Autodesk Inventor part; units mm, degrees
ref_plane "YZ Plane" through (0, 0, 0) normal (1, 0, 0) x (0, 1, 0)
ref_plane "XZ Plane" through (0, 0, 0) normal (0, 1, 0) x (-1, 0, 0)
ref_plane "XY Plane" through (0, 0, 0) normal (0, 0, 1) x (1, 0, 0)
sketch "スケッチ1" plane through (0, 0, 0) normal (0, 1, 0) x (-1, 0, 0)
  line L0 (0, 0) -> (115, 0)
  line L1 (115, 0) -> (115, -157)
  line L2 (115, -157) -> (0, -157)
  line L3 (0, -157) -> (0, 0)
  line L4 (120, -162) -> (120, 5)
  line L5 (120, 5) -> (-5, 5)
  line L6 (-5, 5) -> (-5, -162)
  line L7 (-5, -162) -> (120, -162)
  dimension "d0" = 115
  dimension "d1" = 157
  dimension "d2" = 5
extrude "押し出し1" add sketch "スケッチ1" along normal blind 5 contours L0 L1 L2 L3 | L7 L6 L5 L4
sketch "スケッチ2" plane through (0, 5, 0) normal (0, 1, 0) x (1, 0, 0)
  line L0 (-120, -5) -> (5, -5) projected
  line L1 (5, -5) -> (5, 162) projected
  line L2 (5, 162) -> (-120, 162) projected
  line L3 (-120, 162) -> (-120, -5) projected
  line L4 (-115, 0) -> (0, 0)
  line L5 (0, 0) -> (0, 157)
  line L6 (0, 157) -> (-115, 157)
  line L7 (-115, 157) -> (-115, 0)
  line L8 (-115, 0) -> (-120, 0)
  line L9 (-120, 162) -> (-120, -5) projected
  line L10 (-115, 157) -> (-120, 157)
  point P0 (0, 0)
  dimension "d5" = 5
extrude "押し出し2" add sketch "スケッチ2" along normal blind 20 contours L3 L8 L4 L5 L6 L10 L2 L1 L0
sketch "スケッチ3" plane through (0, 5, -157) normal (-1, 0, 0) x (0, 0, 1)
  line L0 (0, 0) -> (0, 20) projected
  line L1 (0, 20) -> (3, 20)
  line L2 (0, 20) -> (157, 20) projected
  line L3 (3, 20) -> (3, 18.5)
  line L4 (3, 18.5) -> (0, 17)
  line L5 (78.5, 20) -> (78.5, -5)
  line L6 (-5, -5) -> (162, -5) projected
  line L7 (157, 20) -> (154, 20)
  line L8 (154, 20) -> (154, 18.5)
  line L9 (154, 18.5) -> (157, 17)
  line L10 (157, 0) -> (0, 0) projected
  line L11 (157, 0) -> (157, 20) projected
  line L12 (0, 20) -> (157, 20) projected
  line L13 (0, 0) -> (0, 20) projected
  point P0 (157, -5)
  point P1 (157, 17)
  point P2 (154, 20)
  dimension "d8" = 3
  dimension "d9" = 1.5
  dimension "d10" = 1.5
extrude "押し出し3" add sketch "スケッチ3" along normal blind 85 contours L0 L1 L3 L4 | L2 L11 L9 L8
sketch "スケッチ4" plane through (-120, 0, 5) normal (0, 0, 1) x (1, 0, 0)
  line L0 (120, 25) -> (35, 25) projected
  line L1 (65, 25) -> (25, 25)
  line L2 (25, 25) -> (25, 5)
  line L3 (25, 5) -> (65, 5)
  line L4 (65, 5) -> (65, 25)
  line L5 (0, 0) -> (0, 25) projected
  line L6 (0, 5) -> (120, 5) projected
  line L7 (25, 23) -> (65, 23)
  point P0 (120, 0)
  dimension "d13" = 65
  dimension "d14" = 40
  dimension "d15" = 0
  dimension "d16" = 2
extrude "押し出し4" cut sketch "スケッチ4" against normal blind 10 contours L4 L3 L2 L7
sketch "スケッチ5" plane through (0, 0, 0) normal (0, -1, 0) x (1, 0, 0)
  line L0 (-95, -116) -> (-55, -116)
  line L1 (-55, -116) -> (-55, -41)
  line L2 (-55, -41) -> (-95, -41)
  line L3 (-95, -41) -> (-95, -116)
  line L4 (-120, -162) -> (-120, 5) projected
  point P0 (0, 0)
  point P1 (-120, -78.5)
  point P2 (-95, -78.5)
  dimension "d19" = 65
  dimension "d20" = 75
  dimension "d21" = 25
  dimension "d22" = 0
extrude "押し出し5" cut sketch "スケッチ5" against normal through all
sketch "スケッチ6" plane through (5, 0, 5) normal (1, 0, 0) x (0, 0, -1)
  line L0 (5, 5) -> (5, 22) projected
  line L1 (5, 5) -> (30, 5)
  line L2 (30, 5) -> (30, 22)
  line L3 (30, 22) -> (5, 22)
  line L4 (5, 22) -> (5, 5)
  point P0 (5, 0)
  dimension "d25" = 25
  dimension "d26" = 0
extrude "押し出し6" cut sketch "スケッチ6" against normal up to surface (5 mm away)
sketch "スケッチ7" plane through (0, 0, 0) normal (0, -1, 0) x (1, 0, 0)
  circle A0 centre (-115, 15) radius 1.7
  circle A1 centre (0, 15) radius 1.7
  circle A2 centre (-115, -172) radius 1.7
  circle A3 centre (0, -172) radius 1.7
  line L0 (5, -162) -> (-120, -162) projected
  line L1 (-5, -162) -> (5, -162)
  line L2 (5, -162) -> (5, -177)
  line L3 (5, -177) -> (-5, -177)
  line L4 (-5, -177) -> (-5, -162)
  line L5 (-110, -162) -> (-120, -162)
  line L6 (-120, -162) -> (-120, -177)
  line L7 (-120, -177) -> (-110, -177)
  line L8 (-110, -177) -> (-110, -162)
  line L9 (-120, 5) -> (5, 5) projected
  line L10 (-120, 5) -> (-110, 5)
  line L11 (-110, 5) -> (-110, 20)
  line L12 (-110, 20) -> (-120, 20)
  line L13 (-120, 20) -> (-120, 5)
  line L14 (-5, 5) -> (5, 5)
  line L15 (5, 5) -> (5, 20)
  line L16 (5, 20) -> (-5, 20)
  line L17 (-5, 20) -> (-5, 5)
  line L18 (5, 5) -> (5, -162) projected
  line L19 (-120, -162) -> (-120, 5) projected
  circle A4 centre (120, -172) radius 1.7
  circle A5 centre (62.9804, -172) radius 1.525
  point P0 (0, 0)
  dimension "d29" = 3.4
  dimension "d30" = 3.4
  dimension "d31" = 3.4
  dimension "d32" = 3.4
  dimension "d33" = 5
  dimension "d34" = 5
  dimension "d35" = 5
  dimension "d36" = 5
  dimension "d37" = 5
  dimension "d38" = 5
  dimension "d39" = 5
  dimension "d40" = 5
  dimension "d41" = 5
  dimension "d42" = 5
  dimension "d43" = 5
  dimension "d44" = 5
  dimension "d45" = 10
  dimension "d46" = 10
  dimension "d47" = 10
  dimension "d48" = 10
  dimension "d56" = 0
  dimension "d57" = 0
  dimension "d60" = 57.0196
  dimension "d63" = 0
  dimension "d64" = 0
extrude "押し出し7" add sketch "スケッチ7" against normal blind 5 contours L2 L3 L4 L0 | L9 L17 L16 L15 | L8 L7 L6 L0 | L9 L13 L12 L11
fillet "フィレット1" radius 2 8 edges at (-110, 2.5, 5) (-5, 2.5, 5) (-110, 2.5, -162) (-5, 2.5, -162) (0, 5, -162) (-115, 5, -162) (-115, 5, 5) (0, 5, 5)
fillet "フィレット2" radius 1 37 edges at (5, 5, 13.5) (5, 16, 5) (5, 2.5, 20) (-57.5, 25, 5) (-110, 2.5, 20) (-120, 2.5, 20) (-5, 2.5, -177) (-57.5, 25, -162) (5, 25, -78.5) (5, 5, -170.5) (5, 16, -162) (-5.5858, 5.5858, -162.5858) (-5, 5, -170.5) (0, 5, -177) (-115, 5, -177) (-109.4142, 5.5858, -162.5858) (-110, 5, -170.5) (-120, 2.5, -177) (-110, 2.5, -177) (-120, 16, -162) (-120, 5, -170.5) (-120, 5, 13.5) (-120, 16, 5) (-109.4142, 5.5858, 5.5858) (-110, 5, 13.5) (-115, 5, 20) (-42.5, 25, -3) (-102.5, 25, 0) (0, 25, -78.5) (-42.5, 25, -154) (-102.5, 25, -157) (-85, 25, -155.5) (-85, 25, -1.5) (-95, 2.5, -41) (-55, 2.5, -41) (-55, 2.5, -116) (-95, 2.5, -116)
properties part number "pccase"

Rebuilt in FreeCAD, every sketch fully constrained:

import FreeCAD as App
import Part
import Sketcher


def edges_at(feature, points):
    """Names of the edges that pass closest to the given points."""
    edges = feature.Shape.Edges
    near = lambda p: min(range(len(edges)), key=lambda i: edges[i].distToShape(Part.Vertex(*p))[0])
    return sorted({f"Edge{near(p) + 1}" for p in points})


def add_polygon(sketch, points):
    """Adds a closed chain of lines whose ends are joined by coincident constraints."""
    first, n = sketch.GeometryCount, len(points)
    for a, b in zip(points, points[1:] + points[:1]):
        sketch.addGeometry(Part.LineSegment(App.Vector(*a, 0), App.Vector(*b, 0)), False)
    for i in range(n):
        sketch.addConstraint(Sketcher.Constraint("Coincident", first + i, 2, first + (i + 1) % n, 1))

doc = App.newDocument("Part")
params = doc.addObject("Spreadsheet::Sheet", "Params")
for row, (alias, value) in enumerate([
    ("sketch1_width", "125 mm"),
    ("sketch1_height", "167 mm"),
    ("pad1_length", "5 mm"),
    ("sketch2_height", "5 mm"),
    ("sketch2_width", "125 mm"),
    ("sketch2_height2", "167 mm"),
    ("pad2_length", "20 mm"),
    ("sketch3_width", "3 mm"),
    ("sketch3_width2", "1.5 mm"),
    ("pad3_length", "85 mm"),
    ("sketch4_width", "40 mm"),
    ("sketch4_height", "18 mm"),
    ("pocket1_length", "10 mm"),
    ("sketch5_height", "75 mm"),
    ("sketch5_width", "40 mm"),
    ("sketch6_height", "25 mm"),
    ("sketch6_width", "17 mm"),
    ("pocket3_length", "5 mm"),
    ("sketch7_diameter", "3.4 mm"),
    ("sketch7_width", "10 mm"),
    ("pad4_length", "5 mm"),
    ("fillet_radius", "2 mm"),
    ("fillet2_radius", "1 mm"),
], start=1):
    params.set(f"A{row}", alias)
    params.set(f"B{row}", "=" + value)
    params.setAlias(f"B{row}", alias)

body = doc.addObject("PartDesign::Body", "Body")

sketch1 = doc.addObject("Sketcher::SketchObject", "Sketch")
body.addObject(sketch1)
sketch1.AttachmentSupport = (doc.XZ_Plane, [""])
sketch1.MapMode = "FlatFace"
add_polygon(sketch1, [(5, -162), (-120, -162), (-120, 5), (5, 5)])
sketch1.addConstraint(Sketcher.Constraint("Horizontal", 0))
sketch1.addConstraint(Sketcher.Constraint("Vertical", 1))
sketch1.addConstraint(Sketcher.Constraint("Horizontal", 2))
sketch1.addConstraint(Sketcher.Constraint("Vertical", 3))
sketch1.addConstraint(Sketcher.Constraint("DistanceY", -1, 1, 1, 2, 5.0))
sketch1.addConstraint(Sketcher.Constraint("DistanceX", -1, 1, 2, 2, 5.0))
sketch1.addConstraint(Sketcher.Constraint("DistanceX", 0, 2, 0, 1, 125.0))
sketch1.addConstraint(Sketcher.Constraint("DistanceY", 1, 1, 1, 2, 167.0))
sketch1.setExpression("Constraints[10]", "Params.sketch1_width")
sketch1.setExpression("Constraints[11]", "Params.sketch1_height")
pad1 = doc.addObject("PartDesign::Pad", "Pad")
body.addObject(pad1)
pad1.Profile = sketch1
pad1.setExpression("Length", "Params.pad1_length")
pad1.Reversed = True

sketch2 = doc.addObject("Sketcher::SketchObject", "Sketch001")
body.addObject(sketch2)
sketch2.AttachmentSupport = (doc.XZ_Plane, [""])
sketch2.MapMode = "FlatFace"
sketch2.AttachmentOffset = App.Placement(App.Vector(0, 0, -5), App.Rotation())
add_polygon(sketch2, [(-120, 0), (-120, 5), (5, 5), (5, -162), (-120, -162), (-120, -157), (0, -157), (0, 0)])
sketch2.addConstraint(Sketcher.Constraint("Vertical", 0))
sketch2.addConstraint(Sketcher.Constraint("Horizontal", 1))
sketch2.addConstraint(Sketcher.Constraint("Vertical", 2))
sketch2.addConstraint(Sketcher.Constraint("Horizontal", 3))
sketch2.addConstraint(Sketcher.Constraint("Vertical", 4))
sketch2.addConstraint(Sketcher.Constraint("Horizontal", 5))
sketch2.addConstraint(Sketcher.Constraint("Vertical", 6))
sketch2.addConstraint(Sketcher.Constraint("Horizontal", 7))
sketch2.addConstraint(Sketcher.Constraint("Coincident", 6, 2, -1, 1))
sketch2.addConstraint(Sketcher.Constraint("Vertical", 0, 2, 3, 2))
sketch2.addConstraint(Sketcher.Constraint("Equal", 0, 4))
sketch2.addConstraint(Sketcher.Constraint("DistanceY", 0, 1, 0, 2, 5.0))
sketch2.addConstraint(Sketcher.Constraint("DistanceX", -1, 1, 1, 2, 5.0))
sketch2.addConstraint(Sketcher.Constraint("DistanceX", 1, 1, 1, 2, 125.0))
sketch2.addConstraint(Sketcher.Constraint("DistanceY", 2, 2, 2, 1, 167.0))
sketch2.setExpression("Constraints[19]", "Params.sketch2_height")
sketch2.setExpression("Constraints[21]", "Params.sketch2_width")
sketch2.setExpression("Constraints[22]", "Params.sketch2_height2")
pad2 = doc.addObject("PartDesign::Pad", "Pad001")
body.addObject(pad2)
pad2.Profile = sketch2
pad2.setExpression("Length", "Params.pad2_length")
pad2.Reversed = True

sketch3 = doc.addObject("Sketcher::SketchObject", "Sketch002")
body.addObject(sketch3)
sketch3.AttachmentSupport = (doc.YZ_Plane, [""])
sketch3.MapMode = "FlatFace"
add_polygon(sketch3, [(25, -157), (22, -157), (23.5, -154), (25, -154)])
add_polygon(sketch3, [(25, 0), (25, -3), (23.5, -3), (22, 0)])
sketch3.addConstraint(Sketcher.Constraint("Horizontal", 0))
sketch3.addConstraint(Sketcher.Constraint("Horizontal", 2))
sketch3.addConstraint(Sketcher.Constraint("Vertical", 3))
sketch3.addConstraint(Sketcher.Constraint("Vertical", 4))
sketch3.addConstraint(Sketcher.Constraint("Horizontal", 5))
sketch3.addConstraint(Sketcher.Constraint("Horizontal", 7))
sketch3.addConstraint(Sketcher.Constraint("PointOnObject", 6, 2, -1))
sketch3.addConstraint(Sketcher.Constraint("Vertical", 3, 2, 4, 2))
sketch3.addConstraint(Sketcher.Constraint("Vertical", 1, 2, 5, 2))
sketch3.addConstraint(Sketcher.Constraint("Vertical", 0, 2, 6, 2))
sketch3.addConstraint(Sketcher.Constraint("Equal", 7, 3))
sketch3.addConstraint(Sketcher.Constraint("Equal", 3, 4))
sketch3.addConstraint(Sketcher.Constraint("DistanceX", 0, 2, 0, 1, 3.0))
sketch3.addConstraint(Sketcher.Constraint("DistanceX", 2, 1, 2, 2, 1.5))
sketch3.addConstraint(Sketcher.Constraint("DistanceX", -1, 1, 0, 2, 22.0))
sketch3.addConstraint(Sketcher.Constraint("DistanceY", 0, 2, -1, 1, 157.0))
sketch3.setExpression("Constraints[20]", "Params.sketch3_width")
sketch3.setExpression("Constraints[21]", "Params.sketch3_width2")
pad3 = doc.addObject("PartDesign::Pad", "Pad002")
body.addObject(pad3)
pad3.Profile = sketch3
pad3.setExpression("Length", "Params.pad3_length")
pad3.Reversed = True

sketch4 = doc.addObject("Sketcher::SketchObject", "Sketch003")
body.addObject(sketch4)
sketch4.AttachmentSupport = (doc.XY_Plane, [""])
sketch4.MapMode = "FlatFace"
sketch4.AttachmentOffset = App.Placement(App.Vector(0, 0, 5), App.Rotation())
add_polygon(sketch4, [(-55, 5), (-55, 23), (-95, 23), (-95, 5)])
sketch4.addConstraint(Sketcher.Constraint("Vertical", 0))
sketch4.addConstraint(Sketcher.Constraint("Horizontal", 1))
sketch4.addConstraint(Sketcher.Constraint("Vertical", 2))
sketch4.addConstraint(Sketcher.Constraint("Horizontal", 3))
sketch4.addConstraint(Sketcher.Constraint("DistanceX", 1, 2, 1, 1, 40.0))
sketch4.addConstraint(Sketcher.Constraint("DistanceY", 0, 1, 0, 2, 18.0))
sketch4.addConstraint(Sketcher.Constraint("DistanceX", 0, 2, -1, 1, 55.0))
sketch4.addConstraint(Sketcher.Constraint("DistanceY", -1, 1, 0, 2, 23.0))
sketch4.setExpression("Constraints[8]", "Params.sketch4_width")
sketch4.setExpression("Constraints[9]", "Params.sketch4_height")
pocket1 = doc.addObject("PartDesign::Pocket", "Pocket")
body.addObject(pocket1)
pocket1.Profile = sketch4
pocket1.setExpression("Length", "Params.pocket1_length")

sketch5 = doc.addObject("Sketcher::SketchObject", "Sketch004")
body.addObject(sketch5)
sketch5.AttachmentSupport = (doc.XZ_Plane, [""])
sketch5.MapMode = "FlatFace"
add_polygon(sketch5, [(-95, -41), (-95, -116), (-55, -116), (-55, -41)])
sketch5.addConstraint(Sketcher.Constraint("Vertical", 0))
sketch5.addConstraint(Sketcher.Constraint("Horizontal", 1))
sketch5.addConstraint(Sketcher.Constraint("Vertical", 2))
sketch5.addConstraint(Sketcher.Constraint("Horizontal", 3))
sketch5.addConstraint(Sketcher.Constraint("DistanceY", 0, 2, 0, 1, 75.0))
sketch5.addConstraint(Sketcher.Constraint("DistanceX", 1, 1, 1, 2, 40.0))
sketch5.addConstraint(Sketcher.Constraint("DistanceX", 0, 2, -1, 1, 95.0))
sketch5.addConstraint(Sketcher.Constraint("DistanceY", 0, 2, -1, 1, 116.0))
sketch5.setExpression("Constraints[8]", "Params.sketch5_height")
sketch5.setExpression("Constraints[9]", "Params.sketch5_width")
pocket2 = doc.addObject("PartDesign::Pocket", "Pocket001")
body.addObject(pocket2)
pocket2.Profile = sketch5
pocket2.Type = "ThroughAll"

sketch6 = doc.addObject("Sketcher::SketchObject", "Sketch005")
body.addObject(sketch6)
sketch6.AttachmentSupport = (doc.YZ_Plane, [""])
sketch6.MapMode = "FlatFace"
sketch6.AttachmentOffset = App.Placement(App.Vector(0, 0, 5), App.Rotation())
add_polygon(sketch6, [(22, 0), (5, 0), (5, -25), (22, -25)])
sketch6.addConstraint(Sketcher.Constraint("Horizontal", 0))
sketch6.addConstraint(Sketcher.Constraint("Vertical", 1))
sketch6.addConstraint(Sketcher.Constraint("Horizontal", 2))
sketch6.addConstraint(Sketcher.Constraint("Vertical", 3))
sketch6.addConstraint(Sketcher.Constraint("PointOnObject", 0, 2, -1))
sketch6.addConstraint(Sketcher.Constraint("DistanceY", 1, 2, 1, 1, 25.0))
sketch6.addConstraint(Sketcher.Constraint("DistanceX", 0, 2, 0, 1, 17.0))
sketch6.addConstraint(Sketcher.Constraint("DistanceX", -1, 1, 0, 2, 5.0))
sketch6.setExpression("Constraints[9]", "Params.sketch6_height")
sketch6.setExpression("Constraints[10]", "Params.sketch6_width")
pocket3 = doc.addObject("PartDesign::Pocket", "Pocket002")
body.addObject(pocket3)
pocket3.Profile = sketch6
pocket3.setExpression("Length", "Params.pocket3_length")

sketch7 = doc.addObject("Sketcher::SketchObject", "Sketch006")
body.addObject(sketch7)
sketch7.AttachmentSupport = (doc.XZ_Plane, [""])
sketch7.MapMode = "FlatFace"
add_polygon(sketch7, [(5, -177), (5, -162), (-5, -162), (-5, -177)])
sketch7.addGeometry(Part.Circle(App.Vector(0, -172, 0), App.Vector(0, 0, 1), 1.7), False)
add_polygon(sketch7, [(-5, 5), (5, 5), (5, 20), (-5, 20)])
sketch7.addGeometry(Part.Circle(App.Vector(0, 15, 0), App.Vector(0, 0, 1), 1.7), False)
add_polygon(sketch7, [(-110, -177), (-110, -162), (-120, -162), (-120, -177)])
sketch7.addGeometry(Part.Circle(App.Vector(-115, -172, 0), App.Vector(0, 0, 1), 1.7), False)
add_polygon(sketch7, [(-120, 5), (-110, 5), (-110, 20), (-120, 20)])
sketch7.addGeometry(Part.Circle(App.Vector(-115, 15, 0), App.Vector(0, 0, 1), 1.7), False)
sketch7.addConstraint(Sketcher.Constraint("Vertical", 0))
sketch7.addConstraint(Sketcher.Constraint("Horizontal", 1))
sketch7.addConstraint(Sketcher.Constraint("Vertical", 2))
sketch7.addConstraint(Sketcher.Constraint("Horizontal", 3))
sketch7.addConstraint(Sketcher.Constraint("Horizontal", 5))
sketch7.addConstraint(Sketcher.Constraint("Vertical", 6))
sketch7.addConstraint(Sketcher.Constraint("Horizontal", 7))
sketch7.addConstraint(Sketcher.Constraint("Vertical", 8))
sketch7.addConstraint(Sketcher.Constraint("Vertical", 10))
sketch7.addConstraint(Sketcher.Constraint("Horizontal", 11))
sketch7.addConstraint(Sketcher.Constraint("Vertical", 12))
sketch7.addConstraint(Sketcher.Constraint("Horizontal", 13))
sketch7.addConstraint(Sketcher.Constraint("Horizontal", 15))
sketch7.addConstraint(Sketcher.Constraint("Vertical", 16))
sketch7.addConstraint(Sketcher.Constraint("Horizontal", 17))
sketch7.addConstraint(Sketcher.Constraint("Vertical", 18))
sketch7.addConstraint(Sketcher.Constraint("Equal", 4, 9))
sketch7.addConstraint(Sketcher.Constraint("Equal", 9, 14))
sketch7.addConstraint(Sketcher.Constraint("Equal", 14, 19))
sketch7.addConstraint(Sketcher.Constraint("PointOnObject", 4, 3, -2))
sketch7.addConstraint(Sketcher.Constraint("PointOnObject", 9, 3, -2))
sketch7.addConstraint(Sketcher.Constraint("Horizontal", 4, 3, 14, 3))
sketch7.addConstraint(Sketcher.Constraint("Horizontal", 9, 3, 19, 3))
sketch7.addConstraint(Sketcher.Constraint("Horizontal", 1, 2, 10, 2))
sketch7.addConstraint(Sketcher.Constraint("Horizontal", 3, 2, 12, 2))
sketch7.addConstraint(Sketcher.Constraint("Horizontal", 8, 2, 15, 2))
sketch7.addConstraint(Sketcher.Constraint("Horizontal", 7, 2, 16, 2))
sketch7.addConstraint(Sketcher.Constraint("Vertical", 14, 3, 19, 3))
sketch7.addConstraint(Sketcher.Constraint("Vertical", 3, 2, 5, 2))
sketch7.addConstraint(Sketcher.Constraint("Vertical", 2, 2, 7, 2))
sketch7.addConstraint(Sketcher.Constraint("Vertical", 13, 2, 15, 2))
sketch7.addConstraint(Sketcher.Constraint("Vertical", 12, 2, 17, 2))
sketch7.addConstraint(Sketcher.Constraint("Equal", 7, 11))
sketch7.addConstraint(Sketcher.Constraint("Equal", 2, 6))
sketch7.addConstraint(Sketcher.Constraint("Diameter", 4, 3.4))
sketch7.addConstraint(Sketcher.Constraint("DistanceX", 1, 2, 1, 1, 10.0))
sketch7.addConstraint(Sketcher.Constraint("DistanceX", -1, 1, 0, 2, 5.0))
sketch7.addConstraint(Sketcher.Constraint("DistanceY", -1, 1, 5, 2, 5.0))
sketch7.addConstraint(Sketcher.Constraint("DistanceY", 4, 3, 0, 2, 10.0))
sketch7.addConstraint(Sketcher.Constraint("DistanceY", 2, 2, 4, 3, 5.0))
sketch7.addConstraint(Sketcher.Constraint("DistanceY", 5, 2, 9, 3, 10.0))
sketch7.addConstraint(Sketcher.Constraint("DistanceX", 14, 3, 10, 2, 5.0))
sketch7.addConstraint(Sketcher.Constraint("DistanceY", 4, 3, -1, 1, 172.0))
sketch7.addConstraint(Sketcher.Constraint("DistanceX", 14, 3, -1, 1, 115.0))
sketch7.setExpression("Constraints[50]", "Params.sketch7_diameter")
sketch7.setExpression("Constraints[51]", "Params.sketch7_width")
pad4 = doc.addObject("PartDesign::Pad", "Pad003")
body.addObject(pad4)
pad4.Profile = sketch7
pad4.setExpression("Length", "Params.pad4_length")
pad4.Reversed = True
doc.recompute()

fillet = doc.addObject("PartDesign::Fillet", "Fillet")
body.addObject(fillet)
fillet.Base = (pad4, edges_at(pad4, [
    (-110, 2.5, 5),
    (-5, 2.5, 5),
    (-110, 2.5, -162),
    (-5, 2.5, -162),
    (0, 5, -162),
    (-115, 5, -162),
    (-115, 5, 5),
    (0, 5, 5),
]))
fillet.setExpression("Radius", "Params.fillet_radius")
doc.recompute()

fillet2 = doc.addObject("PartDesign::Fillet", "Fillet001")
body.addObject(fillet2)
fillet2.Base = (fillet, edges_at(fillet, [
    (5, 5, 13.5),
    (5, 16, 5),
    (5, 2.5, 20),
    (-57.5, 25, 5),
    (-110, 2.5, 20),
    (-120, 2.5, 20),
    (-5, 2.5, -177),
    (-57.5, 25, -162),
    (5, 25, -78.5),
    (5, 5, -170.5),
    (5, 16, -162),
    (-5.586, 5.586, -162.586),
    (-5, 5, -170.5),
    (0, 5, -177),
    (-115, 5, -177),
    (-109.414, 5.586, -162.586),
    (-110, 5, -170.5),
    (-120, 2.5, -177),
    (-110, 2.5, -177),
    (-120, 16, -162),
    (-120, 5, -170.5),
    (-120, 5, 13.5),
    (-120, 16, 5),
    (-109.414, 5.586, 5.586),
    (-110, 5, 13.5),
    (-115, 5, 20),
    (-42.5, 25, -3),
    (-102.5, 25, 0),
    (0, 25, -78.5),
    (-42.5, 25, -154),
    (-102.5, 25, -157),
    (-85, 25, -155.5),
    (-85, 25, -1.5),
    (-95, 2.5, -41),
    (-55, 2.5, -41),
    (-55, 2.5, -116),
    (-95, 2.5, -116),
]))
fillet2.setExpression("Radius", "Params.fillet2_radius")

doc.recompute()
